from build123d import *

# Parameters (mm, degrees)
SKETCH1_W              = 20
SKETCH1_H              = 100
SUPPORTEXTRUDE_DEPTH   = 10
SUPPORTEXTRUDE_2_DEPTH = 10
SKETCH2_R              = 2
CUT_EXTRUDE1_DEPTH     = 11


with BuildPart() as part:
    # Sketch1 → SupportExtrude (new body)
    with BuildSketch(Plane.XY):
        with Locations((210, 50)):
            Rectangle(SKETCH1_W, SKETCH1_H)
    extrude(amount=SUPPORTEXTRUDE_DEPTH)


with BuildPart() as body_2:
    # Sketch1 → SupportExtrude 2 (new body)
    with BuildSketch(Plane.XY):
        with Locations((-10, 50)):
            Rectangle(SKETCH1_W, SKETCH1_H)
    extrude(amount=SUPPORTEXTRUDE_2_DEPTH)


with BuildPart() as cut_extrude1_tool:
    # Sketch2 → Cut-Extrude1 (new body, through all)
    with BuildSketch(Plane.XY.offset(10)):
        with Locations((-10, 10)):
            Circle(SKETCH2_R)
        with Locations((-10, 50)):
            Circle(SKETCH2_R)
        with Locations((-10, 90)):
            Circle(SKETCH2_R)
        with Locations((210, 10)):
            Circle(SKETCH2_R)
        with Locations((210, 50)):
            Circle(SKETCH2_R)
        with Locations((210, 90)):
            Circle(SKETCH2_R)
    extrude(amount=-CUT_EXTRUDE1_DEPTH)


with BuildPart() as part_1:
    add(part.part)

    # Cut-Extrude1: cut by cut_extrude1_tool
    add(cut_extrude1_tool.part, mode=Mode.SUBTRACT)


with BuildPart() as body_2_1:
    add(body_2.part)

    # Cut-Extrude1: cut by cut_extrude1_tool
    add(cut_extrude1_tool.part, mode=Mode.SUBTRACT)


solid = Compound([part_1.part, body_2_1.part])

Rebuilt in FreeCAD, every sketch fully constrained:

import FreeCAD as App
import Part
import Sketcher
from FreeCAD import Vector


def add_polygon(sketch, points):
    """Adds a closed chain of lines whose ends are joined by coincident constraints."""
    first, n = sketch.GeometryCount, len(points)
    for a, b in zip(points, points[1:] + points[:1]):
        sketch.addGeometry(Part.LineSegment(App.Vector(*a, 0), App.Vector(*b, 0)), False)
    for i in range(n):
        sketch.addConstraint(Sketcher.Constraint("Coincident", first + i, 2, first + (i + 1) % n, 1))

doc = App.newDocument("Part")
body = doc.addObject("PartDesign::Body", "Body")

# Sketch on XY plane
sketch1 = doc.addObject("Sketcher::SketchObject", "Sketch")
body.addObject(sketch1)
sketch1.AttachmentSupport = (doc.XY_Plane, [""])
sketch1.MapMode = "FlatFace"
add_polygon(sketch1, [(200, 100), (200, 0), (220, 0), (220, 100)])  # lines 0-3
sketch1.addConstraint([
    Sketcher.Constraint("Vertical", 0),
    Sketcher.Constraint("Horizontal", 1),
    Sketcher.Constraint("Vertical", 2),
    Sketcher.Constraint("Horizontal", 3),
    Sketcher.Constraint("PointOnObject", 0, 2, -1),
    Sketcher.Constraint("DistanceX", 1, 1, 1, 2, 20.0),
    Sketcher.Constraint("DistanceY", 0, 2, 0, 1, 100.0),
    Sketcher.Constraint("DistanceX", -1, 1, 0, 2, 200.0),
])
pad1 = doc.addObject("PartDesign::Pad", "Pad")
body.addObject(pad1)
pad1.Profile = sketch1
pad1.Length = 10
body2 = doc.addObject("PartDesign::Body", "Body001")

# Sketch on XY plane
sketch2 = doc.addObject("Sketcher::SketchObject", "Sketch001")
body2.addObject(sketch2)
sketch2.AttachmentSupport = (doc.getObject("XY_Plane001"), [""])
sketch2.MapMode = "FlatFace"
add_polygon(sketch2, [(-20, 100), (-20, 0), (0, 0), (0, 100)])  # lines 0-3
sketch2.addConstraint([
    Sketcher.Constraint("Vertical", 0),
    Sketcher.Constraint("Horizontal", 1),
    Sketcher.Constraint("Vertical", 2),
    Sketcher.Constraint("Horizontal", 3),
    Sketcher.Constraint("Coincident", 1, 2, -1, 1),
    Sketcher.Constraint("DistanceX", 1, 1, 1, 2, 20.0),
    Sketcher.Constraint("DistanceY", 0, 2, 0, 1, 100.0),
])
pad2 = doc.addObject("PartDesign::Pad", "Pad001")
body2.addObject(pad2)
pad2.Profile = sketch2
pad2.Length = 10
body3 = doc.addObject("PartDesign::Body", "Body002")
body3.AllowCompound = True

# Sketch on XY plane
sketch3 = doc.addObject("Sketcher::SketchObject", "Sketch002")
body3.addObject(sketch3)
sketch3.AttachmentSupport = (doc.getObject("XY_Plane002"), [""])
sketch3.MapMode = "FlatFace"
sketch3.AttachmentOffset = App.Placement(Vector(0, 0, 10), App.Rotation())
sketch3.addGeometry([
    Part.Circle(Vector(-10, 10, 0), Vector(0, 0, 1), 2),  # 0
    Part.Circle(Vector(-10, 50, 0), Vector(0, 0, 1), 2),  # 1
    Part.Circle(Vector(-10, 90, 0), Vector(0, 0, 1), 2),  # 2
    Part.Circle(Vector(210, 10, 0), Vector(0, 0, 1), 2),  # 3
    Part.Circle(Vector(210, 50, 0), Vector(0, 0, 1), 2),  # 4
    Part.Circle(Vector(210, 90, 0), Vector(0, 0, 1), 2),  # 5
], False)
sketch3.addConstraint([
    Sketcher.Constraint("Equal", 0, 1),
    Sketcher.Constraint("Equal", 1, 2),
    Sketcher.Constraint("Equal", 2, 3),
    Sketcher.Constraint("Equal", 3, 4),
    Sketcher.Constraint("Equal", 4, 5),
    Sketcher.Constraint("Horizontal", 0, 3, 3, 3),
    Sketcher.Constraint("Horizontal", 1, 3, 4, 3),
    Sketcher.Constraint("Horizontal", 2, 3, 5, 3),
    Sketcher.Constraint("Vertical", 0, 3, 1, 3),
    Sketcher.Constraint("Vertical", 1, 3, 2, 3),
    Sketcher.Constraint("Vertical", 3, 3, 4, 3),
    Sketcher.Constraint("Vertical", 4, 3, 5, 3),
    Sketcher.Constraint("Diameter", 0, 4.0),
    Sketcher.Constraint("DistanceX", 0, 3, -1, 1, 10.0),
    Sketcher.Constraint("DistanceY", -1, 1, 0, 3, 10.0),
    Sketcher.Constraint("DistanceY", -1, 1, 1, 3, 50.0),
    Sketcher.Constraint("DistanceY", -1, 1, 2, 3, 90.0),
    Sketcher.Constraint("DistanceX", -1, 1, 3, 3, 210.0),
])
pad3 = doc.addObject("PartDesign::Pad", "Pad002")
body3.addObject(pad3)
pad3.Profile = sketch3
pad3.Length = 11
pad3.Reversed = True
doc.recompute()

body4 = doc.addObject("PartDesign::Body", "Body003")
body4.BaseFeature = body3
boolean = doc.addObject("PartDesign::Boolean", "Boolean")
body.addObject(boolean)
boolean.Type = "Cut"
boolean.addObjects([body4])
doc.recompute()

boolean2 = doc.addObject("PartDesign::Boolean", "Boolean001")
body2.addObject(boolean2)
boolean2.Type = "Cut"
boolean2.addObjects([body3])

doc.recompute()
